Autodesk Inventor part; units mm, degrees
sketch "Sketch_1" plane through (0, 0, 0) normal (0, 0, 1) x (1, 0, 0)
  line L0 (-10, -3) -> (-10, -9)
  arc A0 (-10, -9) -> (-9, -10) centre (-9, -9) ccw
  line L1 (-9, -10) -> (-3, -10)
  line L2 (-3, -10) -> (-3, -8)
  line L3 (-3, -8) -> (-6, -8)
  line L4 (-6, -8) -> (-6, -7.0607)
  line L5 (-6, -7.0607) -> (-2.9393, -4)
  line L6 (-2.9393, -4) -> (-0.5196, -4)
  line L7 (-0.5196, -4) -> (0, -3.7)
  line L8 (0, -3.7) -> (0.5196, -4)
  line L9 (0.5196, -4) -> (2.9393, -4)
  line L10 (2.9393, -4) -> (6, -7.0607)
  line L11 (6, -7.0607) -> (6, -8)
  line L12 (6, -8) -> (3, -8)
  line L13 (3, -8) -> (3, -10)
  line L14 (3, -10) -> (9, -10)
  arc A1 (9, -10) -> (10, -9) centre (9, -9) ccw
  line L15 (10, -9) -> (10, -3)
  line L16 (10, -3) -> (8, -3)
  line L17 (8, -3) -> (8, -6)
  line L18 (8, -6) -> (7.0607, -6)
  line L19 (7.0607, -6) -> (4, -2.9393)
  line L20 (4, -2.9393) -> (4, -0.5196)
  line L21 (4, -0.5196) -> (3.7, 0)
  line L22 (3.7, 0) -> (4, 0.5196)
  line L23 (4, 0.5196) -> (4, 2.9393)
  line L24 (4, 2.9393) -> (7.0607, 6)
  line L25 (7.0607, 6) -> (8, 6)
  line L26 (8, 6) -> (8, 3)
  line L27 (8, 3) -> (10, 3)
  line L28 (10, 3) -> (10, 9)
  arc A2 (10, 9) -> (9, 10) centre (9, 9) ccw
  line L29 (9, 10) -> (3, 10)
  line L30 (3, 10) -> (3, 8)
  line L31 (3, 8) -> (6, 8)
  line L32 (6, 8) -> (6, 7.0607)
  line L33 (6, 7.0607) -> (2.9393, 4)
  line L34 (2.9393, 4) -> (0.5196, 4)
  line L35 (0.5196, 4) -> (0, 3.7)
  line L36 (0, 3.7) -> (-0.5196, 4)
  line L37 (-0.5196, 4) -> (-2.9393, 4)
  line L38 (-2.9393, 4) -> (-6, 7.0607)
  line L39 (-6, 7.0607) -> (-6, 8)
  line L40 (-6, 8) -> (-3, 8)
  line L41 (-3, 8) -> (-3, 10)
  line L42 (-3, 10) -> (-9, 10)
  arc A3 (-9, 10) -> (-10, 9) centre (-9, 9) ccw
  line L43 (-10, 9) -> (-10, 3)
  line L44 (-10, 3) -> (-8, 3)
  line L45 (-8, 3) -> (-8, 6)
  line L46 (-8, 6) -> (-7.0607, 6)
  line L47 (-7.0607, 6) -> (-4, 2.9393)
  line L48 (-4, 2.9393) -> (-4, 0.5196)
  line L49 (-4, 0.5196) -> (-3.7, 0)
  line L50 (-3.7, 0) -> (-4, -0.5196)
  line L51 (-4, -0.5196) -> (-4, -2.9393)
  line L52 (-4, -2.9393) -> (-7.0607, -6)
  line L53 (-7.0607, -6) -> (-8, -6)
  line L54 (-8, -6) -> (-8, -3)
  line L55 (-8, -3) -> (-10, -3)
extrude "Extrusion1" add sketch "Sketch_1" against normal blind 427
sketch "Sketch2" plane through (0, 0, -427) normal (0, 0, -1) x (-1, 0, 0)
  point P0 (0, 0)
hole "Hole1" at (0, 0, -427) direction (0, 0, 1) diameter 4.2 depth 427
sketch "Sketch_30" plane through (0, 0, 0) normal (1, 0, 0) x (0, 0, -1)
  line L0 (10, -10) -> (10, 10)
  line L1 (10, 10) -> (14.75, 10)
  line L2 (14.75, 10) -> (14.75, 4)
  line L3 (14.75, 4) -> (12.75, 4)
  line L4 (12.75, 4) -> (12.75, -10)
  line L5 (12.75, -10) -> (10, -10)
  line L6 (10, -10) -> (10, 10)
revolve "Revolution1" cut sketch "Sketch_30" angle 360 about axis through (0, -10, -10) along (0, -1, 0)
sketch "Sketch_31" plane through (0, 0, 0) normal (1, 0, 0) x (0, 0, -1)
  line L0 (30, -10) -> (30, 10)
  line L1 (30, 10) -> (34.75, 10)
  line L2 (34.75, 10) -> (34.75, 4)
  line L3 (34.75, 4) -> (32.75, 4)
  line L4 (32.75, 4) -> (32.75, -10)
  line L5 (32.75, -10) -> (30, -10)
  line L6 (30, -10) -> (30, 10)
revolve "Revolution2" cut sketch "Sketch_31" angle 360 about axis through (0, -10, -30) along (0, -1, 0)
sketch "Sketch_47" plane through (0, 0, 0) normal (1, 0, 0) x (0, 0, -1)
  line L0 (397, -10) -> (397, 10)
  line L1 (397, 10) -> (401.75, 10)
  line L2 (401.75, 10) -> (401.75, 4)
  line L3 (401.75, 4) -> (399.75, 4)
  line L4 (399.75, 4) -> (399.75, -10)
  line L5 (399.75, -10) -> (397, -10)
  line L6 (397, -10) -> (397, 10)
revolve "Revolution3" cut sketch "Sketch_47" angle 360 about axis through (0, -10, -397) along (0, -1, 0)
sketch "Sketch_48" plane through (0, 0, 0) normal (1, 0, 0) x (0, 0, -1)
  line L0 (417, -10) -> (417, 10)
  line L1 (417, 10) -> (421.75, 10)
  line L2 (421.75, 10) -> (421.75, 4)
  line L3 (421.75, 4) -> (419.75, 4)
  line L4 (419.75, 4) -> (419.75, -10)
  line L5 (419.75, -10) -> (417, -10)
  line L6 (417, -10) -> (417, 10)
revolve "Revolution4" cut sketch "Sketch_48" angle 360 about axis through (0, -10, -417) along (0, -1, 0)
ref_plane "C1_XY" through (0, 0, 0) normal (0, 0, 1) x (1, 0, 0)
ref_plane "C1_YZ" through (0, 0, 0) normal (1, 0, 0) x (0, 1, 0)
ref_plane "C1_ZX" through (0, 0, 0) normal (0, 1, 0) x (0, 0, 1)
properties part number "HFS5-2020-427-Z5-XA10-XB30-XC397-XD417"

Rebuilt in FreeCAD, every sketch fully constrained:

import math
import FreeCAD as App
import Part
import Sketcher
Q = App.Units.Quantity


def add_polygon(sketch, points):
    """Adds a closed chain of lines whose ends are joined by coincident constraints."""
    first, n = sketch.GeometryCount, len(points)
    for a, b in zip(points, points[1:] + points[:1]):
        sketch.addGeometry(Part.LineSegment(App.Vector(*a, 0), App.Vector(*b, 0)), False)
    for i in range(n):
        sketch.addConstraint(Sketcher.Constraint("Coincident", first + i, 2, first + (i + 1) % n, 1))

doc = App.newDocument("Part")
body = doc.addObject("PartDesign::Body", "Body")

# Sketch on XY plane
sketch1 = body.newObject("Sketcher::SketchObject", "Sketch")
sketch1.AttachmentSupport = (doc.getObject("XY_Plane"), [""])
sketch1.MapMode = "FlatFace"
sketch1.addGeometry([
    Part.LineSegment(App.Vector(-8, -3, 0), App.Vector(-10, -3, 0)),  # 0
    Part.LineSegment(App.Vector(-10, -3, 0), App.Vector(-10, -9, 0)),  # 1
    Part.ArcOfCircle(Part.Circle(App.Vector(-9, -9, 0), App.Vector(0, 0, 1), 1), math.radians(180), math.radians(270)),  # 2
    Part.LineSegment(App.Vector(-9, -10, 0), App.Vector(-3, -10, 0)),  # 3
    Part.LineSegment(App.Vector(-3, -10, 0), App.Vector(-3, -8, 0)),  # 4
    Part.LineSegment(App.Vector(-3, -8, 0), App.Vector(-6, -8, 0)),  # 5
    Part.LineSegment(App.Vector(-6, -8, 0), App.Vector(-6, -7.1, 0)),  # 6
    Part.LineSegment(App.Vector(-6, -7.1, 0), App.Vector(-2.9, -4, 0)),  # 7
    Part.LineSegment(App.Vector(-2.9, -4, 0), App.Vector(-0.5, -4, 0)),  # 8
    Part.LineSegment(App.Vector(-0.5, -4, 0), App.Vector(0, -3.7, 0)),  # 9
    Part.LineSegment(App.Vector(0, -3.7, 0), App.Vector(0.5, -4, 0)),  # 10
    Part.LineSegment(App.Vector(0.5, -4, 0), App.Vector(2.9, -4, 0)),  # 11
    Part.LineSegment(App.Vector(2.9, -4, 0), App.Vector(6, -7.1, 0)),  # 12
    Part.LineSegment(App.Vector(6, -7.1, 0), App.Vector(6, -8, 0)),  # 13
    Part.LineSegment(App.Vector(6, -8, 0), App.Vector(3, -8, 0)),  # 14
    Part.LineSegment(App.Vector(3, -8, 0), App.Vector(3, -10, 0)),  # 15
    Part.LineSegment(App.Vector(3, -10, 0), App.Vector(9, -10, 0)),  # 16
    Part.ArcOfCircle(Part.Circle(App.Vector(9, -9, 0), App.Vector(0, 0, 1), 1), math.radians(-90), math.radians(0)),  # 17
    Part.LineSegment(App.Vector(10, -9, 0), App.Vector(10, -3, 0)),  # 18
    Part.LineSegment(App.Vector(10, -3, 0), App.Vector(8, -3, 0)),  # 19
    Part.LineSegment(App.Vector(8, -3, 0), App.Vector(8, -6, 0)),  # 20
    Part.LineSegment(App.Vector(8, -6, 0), App.Vector(7.1, -6, 0)),  # 21
    Part.LineSegment(App.Vector(7.1, -6, 0), App.Vector(4, -2.9, 0)),  # 22
    Part.LineSegment(App.Vector(4, -2.9, 0), App.Vector(4, -0.5, 0)),  # 23
    Part.LineSegment(App.Vector(4, -0.5, 0), App.Vector(3.7, 0, 0)),  # 24
    Part.LineSegment(App.Vector(3.7, 0, 0), App.Vector(4, 0.5, 0)),  # 25
    Part.LineSegment(App.Vector(4, 0.5, 0), App.Vector(4, 2.9, 0)),  # 26
    Part.LineSegment(App.Vector(4, 2.9, 0), App.Vector(7.1, 6, 0)),  # 27
    Part.LineSegment(App.Vector(7.1, 6, 0), App.Vector(8, 6, 0)),  # 28
    Part.LineSegment(App.Vector(8, 6, 0), App.Vector(8, 3, 0)),  # 29
    Part.LineSegment(App.Vector(8, 3, 0), App.Vector(10, 3, 0)),  # 30
    Part.LineSegment(App.Vector(10, 3, 0), App.Vector(10, 9, 0)),  # 31
    Part.ArcOfCircle(Part.Circle(App.Vector(9, 9, 0), App.Vector(0, 0, 1), 1), math.radians(0), math.radians(90)),  # 32
    Part.LineSegment(App.Vector(9, 10, 0), App.Vector(3, 10, 0)),  # 33
    Part.LineSegment(App.Vector(3, 10, 0), App.Vector(3, 8, 0)),  # 34
    Part.LineSegment(App.Vector(3, 8, 0), App.Vector(6, 8, 0)),  # 35
    Part.LineSegment(App.Vector(6, 8, 0), App.Vector(6, 7.1, 0)),  # 36
    Part.LineSegment(App.Vector(6, 7.1, 0), App.Vector(2.9, 4, 0)),  # 37
    Part.LineSegment(App.Vector(2.9, 4, 0), App.Vector(0.5, 4, 0)),  # 38
    Part.LineSegment(App.Vector(0.5, 4, 0), App.Vector(0, 3.7, 0)),  # 39
    Part.LineSegment(App.Vector(0, 3.7, 0), App.Vector(-0.5, 4, 0)),  # 40
    Part.LineSegment(App.Vector(-0.5, 4, 0), App.Vector(-2.9, 4, 0)),  # 41
    Part.LineSegment(App.Vector(-2.9, 4, 0), App.Vector(-6, 7.1, 0)),  # 42
    Part.LineSegment(App.Vector(-6, 7.1, 0), App.Vector(-6, 8, 0)),  # 43
    Part.LineSegment(App.Vector(-6, 8, 0), App.Vector(-3, 8, 0)),  # 44
    Part.LineSegment(App.Vector(-3, 8, 0), App.Vector(-3, 10, 0)),  # 45
    Part.LineSegment(App.Vector(-3, 10, 0), App.Vector(-9, 10, 0)),  # 46
    Part.ArcOfCircle(Part.Circle(App.Vector(-9, 9, 0), App.Vector(0, 0, 1), 1), math.radians(90), math.radians(180)),  # 47
    Part.LineSegment(App.Vector(-10, 9, 0), App.Vector(-10, 3, 0)),  # 48
    Part.LineSegment(App.Vector(-10, 3, 0), App.Vector(-8, 3, 0)),  # 49
    Part.LineSegment(App.Vector(-8, 3, 0), App.Vector(-8, 6, 0)),  # 50
    Part.LineSegment(App.Vector(-8, 6, 0), App.Vector(-7.1, 6, 0)),  # 51
    Part.LineSegment(App.Vector(-7.1, 6, 0), App.Vector(-4, 2.9, 0)),  # 52
    Part.LineSegment(App.Vector(-4, 2.9, 0), App.Vector(-4, 0.5, 0)),  # 53
    Part.LineSegment(App.Vector(-4, 0.5, 0), App.Vector(-3.7, 0, 0)),  # 54
    Part.LineSegment(App.Vector(-3.7, 0, 0), App.Vector(-4, -0.5, 0)),  # 55
    Part.LineSegment(App.Vector(-4, -0.5, 0), App.Vector(-4, -2.9, 0)),  # 56
    Part.LineSegment(App.Vector(-4, -2.9, 0), App.Vector(-7.1, -6, 0)),  # 57
    Part.LineSegment(App.Vector(-7.1, -6, 0), App.Vector(-8, -6, 0)),  # 58
    Part.LineSegment(App.Vector(-8, -6, 0), App.Vector(-8, -3, 0)),  # 59
], False)
sketch1.addConstraint([
    Sketcher.Constraint("Coincident", 0, 2, 1, 1),
    Sketcher.Constraint("Tangent", 1, 2, 2, 1),
    Sketcher.Constraint("Tangent", 2, 2, 3, 1),
    Sketcher.Constraint("Coincident", 3, 2, 4, 1),
    Sketcher.Constraint("Coincident", 4, 2, 5, 1),
    Sketcher.Constraint("Coincident", 5, 2, 6, 1),
    Sketcher.Constraint("Coincident", 6, 2, 7, 1),
    Sketcher.Constraint("Coincident", 7, 2, 8, 1),
    Sketcher.Constraint("Coincident", 8, 2, 9, 1),
    Sketcher.Constraint("Coincident", 9, 2, 10, 1),
    Sketcher.Constraint("Coincident", 10, 2, 11, 1),
    Sketcher.Constraint("Coincident", 11, 2, 12, 1),
    Sketcher.Constraint("Coincident", 12, 2, 13, 1),
    Sketcher.Constraint("Coincident", 13, 2, 14, 1),
    Sketcher.Constraint("Coincident", 14, 2, 15, 1),
    Sketcher.Constraint("Coincident", 15, 2, 16, 1),
    Sketcher.Constraint("Tangent", 16, 2, 17, 1),
    Sketcher.Constraint("Tangent", 17, 2, 18, 1),
    Sketcher.Constraint("Coincident", 18, 2, 19, 1),
    Sketcher.Constraint("Coincident", 19, 2, 20, 1),
    Sketcher.Constraint("Coincident", 20, 2, 21, 1),
    Sketcher.Constraint("Coincident", 21, 2, 22, 1),
    Sketcher.Constraint("Coincident", 22, 2, 23, 1),
    Sketcher.Constraint("Coincident", 23, 2, 24, 1),
    Sketcher.Constraint("Coincident", 24, 2, 25, 1),
    Sketcher.Constraint("Coincident", 25, 2, 26, 1),
    Sketcher.Constraint("Coincident", 26, 2, 27, 1),
    Sketcher.Constraint("Coincident", 27, 2, 28, 1),
    Sketcher.Constraint("Coincident", 28, 2, 29, 1),
    Sketcher.Constraint("Coincident", 29, 2, 30, 1),
    Sketcher.Constraint("Coincident", 30, 2, 31, 1),
    Sketcher.Constraint("Tangent", 31, 2, 32, 1),
    Sketcher.Constraint("Tangent", 32, 2, 33, 1),
    Sketcher.Constraint("Coincident", 33, 2, 34, 1),
    Sketcher.Constraint("Coincident", 34, 2, 35, 1),
    Sketcher.Constraint("Coincident", 35, 2, 36, 1),
    Sketcher.Constraint("Coincident", 36, 2, 37, 1),
    Sketcher.Constraint("Coincident", 37, 2, 38, 1),
    Sketcher.Constraint("Coincident", 38, 2, 39, 1),
    Sketcher.Constraint("Coincident", 39, 2, 40, 1),
    Sketcher.Constraint("Coincident", 40, 2, 41, 1),
    Sketcher.Constraint("Coincident", 41, 2, 42, 1),
    Sketcher.Constraint("Coincident", 42, 2, 43, 1),
    Sketcher.Constraint("Coincident", 43, 2, 44, 1),
    Sketcher.Constraint("Coincident", 44, 2, 45, 1),
    Sketcher.Constraint("Coincident", 45, 2, 46, 1),
    Sketcher.Constraint("Tangent", 46, 2, 47, 1),
    Sketcher.Constraint("Tangent", 47, 2, 48, 1),
    Sketcher.Constraint("Coincident", 48, 2, 49, 1),
    Sketcher.Constraint("Coincident", 49, 2, 50, 1),
    Sketcher.Constraint("Coincident", 50, 2, 51, 1),
    Sketcher.Constraint("Coincident", 51, 2, 52, 1),
    Sketcher.Constraint("Coincident", 52, 2, 53, 1),
    Sketcher.Constraint("Coincident", 53, 2, 54, 1),
    Sketcher.Constraint("Coincident", 54, 2, 55, 1),
    Sketcher.Constraint("Coincident", 55, 2, 56, 1),
    Sketcher.Constraint("Coincident", 56, 2, 57, 1),
    Sketcher.Constraint("Coincident", 57, 2, 58, 1),
    Sketcher.Constraint("Coincident", 58, 2, 59, 1),
    Sketcher.Constraint("Coincident", 59, 2, 0, 1),
    Sketcher.Constraint("Horizontal", 0),
    Sketcher.Constraint("Vertical", 1),
    Sketcher.Constraint("Horizontal", 3),
    Sketcher.Constraint("Vertical", 4),
    Sketcher.Constraint("Horizontal", 5),
    Sketcher.Constraint("Vertical", 6),
    Sketcher.Constraint("Horizontal", 8),
    Sketcher.Constraint("Horizontal", 11),
    Sketcher.Constraint("Vertical", 13),
    Sketcher.Constraint("Horizontal", 14),
    Sketcher.Constraint("Vertical", 15),
    Sketcher.Constraint("Horizontal", 16),
    Sketcher.Constraint("Vertical", 18),
    Sketcher.Constraint("Horizontal", 19),
    Sketcher.Constraint("Vertical", 20),
    Sketcher.Constraint("Horizontal", 21),
    Sketcher.Constraint("Vertical", 23),
    Sketcher.Constraint("Vertical", 26),
    Sketcher.Constraint("Horizontal", 28),
    Sketcher.Constraint("Vertical", 29),
    Sketcher.Constraint("Horizontal", 30),
    Sketcher.Constraint("Vertical", 31),
    Sketcher.Constraint("Horizontal", 33),
    Sketcher.Constraint("Vertical", 34),
    Sketcher.Constraint("Horizontal", 35),
    Sketcher.Constraint("Vertical", 36),
    Sketcher.Constraint("Horizontal", 38),
    Sketcher.Constraint("Horizontal", 41),
    Sketcher.Constraint("Vertical", 43),
    Sketcher.Constraint("Horizontal", 44),
    Sketcher.Constraint("Vertical", 45),
    Sketcher.Constraint("Horizontal", 46),
    Sketcher.Constraint("Vertical", 48),
    Sketcher.Constraint("Horizontal", 49),
    Sketcher.Constraint("Vertical", 50),
    Sketcher.Constraint("Horizontal", 51),
    Sketcher.Constraint("Vertical", 53),
    Sketcher.Constraint("Vertical", 56),
    Sketcher.Constraint("Horizontal", 58),
    Sketcher.Constraint("Vertical", 59),
    Sketcher.Constraint("Equal", 2, 17),
    Sketcher.Constraint("Equal", 17, 32),
    Sketcher.Constraint("Equal", 32, 47),
    Sketcher.Constraint("Symmetric", 2, 3, 32, 3, -1, 1),
    Sketcher.Constraint("Symmetric", 17, 3, 47, 3, -1, 1),
    Sketcher.Constraint("Symmetric", 4, 2, 34, 2, -1, 1),
    Sketcher.Constraint("Symmetric", 6, 2, 36, 2, -1, 1),
    Sketcher.Constraint("Symmetric", 7, 2, 37, 2, -1, 1),
    Sketcher.Constraint("Symmetric", 9, 2, 39, 2, -1, 1),
    Sketcher.Constraint("Symmetric", 10, 2, 40, 2, -1, 1),
    Sketcher.Constraint("Symmetric", 12, 2, 42, 2, -1, 1),
    Sketcher.Constraint("Symmetric", 14, 2, 44, 2, -1, 1),
    Sketcher.Constraint("Symmetric", 19, 2, 49, 2, -1, 1),
    Sketcher.Constraint("Symmetric", 21, 2, 51, 2, -1, 1),
    Sketcher.Constraint("Symmetric", 22, 2, 52, 2, -1, 1),
    Sketcher.Constraint("Symmetric", 24, 2, 54, 2, -1, 1),
    Sketcher.Constraint("Symmetric", 25, 2, 55, 2, -1, 1),
    Sketcher.Constraint("Symmetric", 27, 2, 57, 2, -1, 1),
    Sketcher.Constraint("Symmetric", 29, 2, 59, 2, -1, 1),
    Sketcher.Constraint("Symmetric", 2, 3, 17, 3, -2),
    Sketcher.Constraint("Symmetric", 8, 2, 10, 2, -2),
    Sketcher.Constraint("Symmetric", 6, 2, 12, 2, -2),
    Sketcher.Constraint("Symmetric", 4, 2, 14, 2, -2),
    Sketcher.Constraint("Symmetric", 29, 2, 49, 2, -2),
    Sketcher.Constraint("Symmetric", 27, 2, 51, 2, -2),
    Sketcher.Constraint("Symmetric", 26, 2, 52, 2, -2),
    Sketcher.Constraint("PointOnObject", 9, 2, -2),
    Sketcher.Constraint("PointOnObject", 24, 2, -1),
    Sketcher.Constraint("Perpendicular", 7, 12),
    Sketcher.Constraint("Parallel", 12, 22),
    Sketcher.Constraint("Perpendicular", 9, 24),
    Sketcher.Constraint("Perpendicular", 10, 25),
    Sketcher.Constraint("Perpendicular", 22, 27),
    Sketcher.Constraint("Perpendicular", 24, 39),
    Sketcher.Constraint("Perpendicular", 37, 42),
    Sketcher.Constraint("Perpendicular", 39, 54),
    Sketcher.Constraint("Perpendicular", 52, 57),
    Sketcher.Constraint("Equal", 46, 1),
    Sketcher.Constraint("Equal", 49, 4),
    Sketcher.Constraint("Equal", 58, 6),
    Sketcher.Constraint("Equal", 44, 20),
    Sketcher.Constraint("Equal", 41, 23),
    Sketcher.Constraint("Equal", 12, 22),
    Sketcher.Constraint("Equal", 10, 24),
    Sketcher.Constraint("Radius", 2, 1.0),
    Sketcher.Constraint("DistanceX", 0, 2, 0, 1, 2.0),
    Sketcher.Constraint("DistanceX", 3, 1, 3, 2, 6.0),
    Sketcher.Constraint("DistanceX", 5, 2, 5, 1, 3.0),
    Sketcher.Constraint("Angle", 9, Q("30.0007 deg")),
    Sketcher.Constraint("DistanceX", 2, 3, -1, 1, 9.0),
    Sketcher.Constraint("DistanceY", 7, 2, -1, 1, 4.0),
    Sketcher.Constraint("Distance", 9, 0.6),
    Sketcher.Constraint("DistanceX", 8, 1, 8, 2, 2.4197),
])
pad1 = body.newObject("PartDesign::Pad", "Pad")
pad1.Profile = sketch1
pad1.Length = 427
pad1.Reversed = True

# Sketch on XY plane
sketch2 = body.newObject("Sketcher::SketchObject", "Sketch001")
sketch2.AttachmentSupport = (doc.getObject("XY_Plane"), [""])
sketch2.MapMode = "FlatFace"
sketch2.AttachmentOffset = App.Placement(App.Vector(0, 0, -427), App.Rotation())
sketch2.addGeometry(Part.Circle(App.Vector(0, 0, 0), App.Vector(0, 0, 1), 2.1), False)
sketch2.addConstraint([
    Sketcher.Constraint("Coincident", 0, 3, -1, 1),
    Sketcher.Constraint("Diameter", 0, 4.2),
])
doc.recompute()
hole = body.newObject("PartDesign::Hole", "Hole")
hole.Profile = sketch2
hole.ThreadType = "None"
hole.Diameter = 4.2
hole.DepthType = "Dimension"
hole.Depth = 427
hole.DrillPoint = "Flat"
hole.Reversed = True

# Sketch on YZ plane
sketch3 = body.newObject("Sketcher::SketchObject", "Sketch002")
sketch3.AttachmentSupport = (doc.getObject("YZ_Plane"), [""])
sketch3.MapMode = "FlatFace"
add_polygon(sketch3, [(10, -10), (-10, -10), (-10, -12.8), (4, -12.8), (4, -14.8), (10, -14.8)])  # lines 0-5
sketch3.addGeometry(Part.LineSegment(App.Vector(10, -10, 0), App.Vector(-10, -10, 0)), True)  # axis
sketch3.addConstraint([
    Sketcher.Constraint("Horizontal", 0),
    Sketcher.Constraint("Vertical", 1),
    Sketcher.Constraint("Horizontal", 2),
    Sketcher.Constraint("Vertical", 3),
    Sketcher.Constraint("Horizontal", 4),
    Sketcher.Constraint("Vertical", 5),
    Sketcher.Constraint("Horizontal", 6),
    Sketcher.Constraint("Coincident", 6, 1, 5, 2),
    Sketcher.Constraint("Vertical", 1, 2, 6, 2),
    Sketcher.Constraint("DistanceX", 0, 2, 0, 1, 20.0),
    Sketcher.Constraint("DistanceX", 2, 1, 2, 2, 14.0),
    Sketcher.Constraint("DistanceY", 3, 2, 3, 1, 2.0),
    Sketcher.Constraint("DistanceX", 0, 2, -1, 1, 10.0),
    Sketcher.Constraint("DistanceY", 0, 2, -1, 1, 10.0),
    Sketcher.Constraint("DistanceY", 1, 2, 1, 1, 2.75),
])
groove = body.newObject("PartDesign::Groove", "Groove")
groove.Profile = sketch3
groove.ReferenceAxis = (sketch3, ["Axis0"])
groove.Angle = 360

# Sketch on YZ plane
sketch4 = body.newObject("Sketcher::SketchObject", "Sketch003")
sketch4.AttachmentSupport = (doc.getObject("YZ_Plane"), [""])
sketch4.MapMode = "FlatFace"
add_polygon(sketch4, [(10, -30), (-10, -30), (-10, -32.8), (4, -32.8), (4, -34.8), (10, -34.8)])  # lines 0-5
sketch4.addGeometry(Part.LineSegment(App.Vector(10, -30, 0), App.Vector(-10, -30, 0)), True)  # axis
sketch4.addConstraint([
    Sketcher.Constraint("Horizontal", 0),
    Sketcher.Constraint("Vertical", 1),
    Sketcher.Constraint("Horizontal", 2),
    Sketcher.Constraint("Vertical", 3),
    Sketcher.Constraint("Horizontal", 4),
    Sketcher.Constraint("Vertical", 5),
    Sketcher.Constraint("Horizontal", 6),
    Sketcher.Constraint("Coincident", 6, 1, 5, 2),
    Sketcher.Constraint("Vertical", 1, 2, 6, 2),
    Sketcher.Constraint("DistanceX", 0, 2, 0, 1, 20.0),
    Sketcher.Constraint("DistanceX", 2, 1, 2, 2, 14.0),
    Sketcher.Constraint("DistanceY", 3, 2, 3, 1, 2.0),
    Sketcher.Constraint("DistanceX", 0, 2, -1, 1, 10.0),
    Sketcher.Constraint("DistanceY", 0, 2, -1, 1, 30.0),
    Sketcher.Constraint("DistanceY", 1, 2, 1, 1, 2.75),
])
groove2 = body.newObject("PartDesign::Groove", "Groove001")
groove2.Profile = sketch4
groove2.ReferenceAxis = (sketch4, ["Axis0"])
groove2.Angle = 360

# Sketch on YZ plane
sketch5 = body.newObject("Sketcher::SketchObject", "Sketch004")
sketch5.AttachmentSupport = (doc.getObject("YZ_Plane"), [""])
sketch5.MapMode = "FlatFace"
add_polygon(sketch5, [(10, -397), (-10, -397), (-10, -399.8), (4, -399.8), (4, -401.8), (10, -401.8)])  # lines 0-5
sketch5.addGeometry(Part.LineSegment(App.Vector(10, -397, 0), App.Vector(-10, -397, 0)), True)  # axis
sketch5.addConstraint([
    Sketcher.Constraint("Horizontal", 0),
    Sketcher.Constraint("Vertical", 1),
    Sketcher.Constraint("Horizontal", 2),
    Sketcher.Constraint("Vertical", 3),
    Sketcher.Constraint("Horizontal", 4),
    Sketcher.Constraint("Vertical", 5),
    Sketcher.Constraint("Horizontal", 6),
    Sketcher.Constraint("Coincident", 6, 1, 5, 2),
    Sketcher.Constraint("Vertical", 1, 2, 6, 2),
    Sketcher.Constraint("DistanceX", 0, 2, 0, 1, 20.0),
    Sketcher.Constraint("DistanceX", 2, 1, 2, 2, 14.0),
    Sketcher.Constraint("DistanceY", 3, 2, 3, 1, 2.0),
    Sketcher.Constraint("DistanceX", 0, 2, -1, 1, 10.0),
    Sketcher.Constraint("DistanceY", 0, 2, -1, 1, 397.0),
    Sketcher.Constraint("DistanceY", 1, 2, 1, 1, 2.75),
])
groove3 = body.newObject("PartDesign::Groove", "Groove002")
groove3.Profile = sketch5
groove3.ReferenceAxis = (sketch5, ["Axis0"])
groove3.Angle = 360

# Sketch on YZ plane
sketch6 = body.newObject("Sketcher::SketchObject", "Sketch005")
sketch6.AttachmentSupport = (doc.getObject("YZ_Plane"), [""])
sketch6.MapMode = "FlatFace"
add_polygon(sketch6, [(10, -417), (-10, -417), (-10, -419.8), (4, -419.8), (4, -421.8), (10, -421.8)])  # lines 0-5
sketch6.addGeometry(Part.LineSegment(App.Vector(10, -417, 0), App.Vector(-10, -417, 0)), True)  # axis
sketch6.addConstraint([
    Sketcher.Constraint("Horizontal", 0),
    Sketcher.Constraint("Vertical", 1),
    Sketcher.Constraint("Horizontal", 2),
    Sketcher.Constraint("Vertical", 3),
    Sketcher.Constraint("Horizontal", 4),
    Sketcher.Constraint("Vertical", 5),
    Sketcher.Constraint("Horizontal", 6),
    Sketcher.Constraint("Coincident", 6, 1, 5, 2),
    Sketcher.Constraint("Vertical", 1, 2, 6, 2),
    Sketcher.Constraint("DistanceX", 0, 2, 0, 1, 20.0),
    Sketcher.Constraint("DistanceX", 2, 1, 2, 2, 14.0),
    Sketcher.Constraint("DistanceY", 3, 2, 3, 1, 2.0),
    Sketcher.Constraint("DistanceX", 0, 2, -1, 1, 10.0),
    Sketcher.Constraint("DistanceY", 0, 2, -1, 1, 417.0),
    Sketcher.Constraint("DistanceY", 1, 2, 1, 1, 2.75),
])
groove4 = body.newObject("PartDesign::Groove", "Groove003")
groove4.Profile = sketch6
groove4.ReferenceAxis = (sketch6, ["Axis0"])
groove4.Angle = 360

doc.recompute()
